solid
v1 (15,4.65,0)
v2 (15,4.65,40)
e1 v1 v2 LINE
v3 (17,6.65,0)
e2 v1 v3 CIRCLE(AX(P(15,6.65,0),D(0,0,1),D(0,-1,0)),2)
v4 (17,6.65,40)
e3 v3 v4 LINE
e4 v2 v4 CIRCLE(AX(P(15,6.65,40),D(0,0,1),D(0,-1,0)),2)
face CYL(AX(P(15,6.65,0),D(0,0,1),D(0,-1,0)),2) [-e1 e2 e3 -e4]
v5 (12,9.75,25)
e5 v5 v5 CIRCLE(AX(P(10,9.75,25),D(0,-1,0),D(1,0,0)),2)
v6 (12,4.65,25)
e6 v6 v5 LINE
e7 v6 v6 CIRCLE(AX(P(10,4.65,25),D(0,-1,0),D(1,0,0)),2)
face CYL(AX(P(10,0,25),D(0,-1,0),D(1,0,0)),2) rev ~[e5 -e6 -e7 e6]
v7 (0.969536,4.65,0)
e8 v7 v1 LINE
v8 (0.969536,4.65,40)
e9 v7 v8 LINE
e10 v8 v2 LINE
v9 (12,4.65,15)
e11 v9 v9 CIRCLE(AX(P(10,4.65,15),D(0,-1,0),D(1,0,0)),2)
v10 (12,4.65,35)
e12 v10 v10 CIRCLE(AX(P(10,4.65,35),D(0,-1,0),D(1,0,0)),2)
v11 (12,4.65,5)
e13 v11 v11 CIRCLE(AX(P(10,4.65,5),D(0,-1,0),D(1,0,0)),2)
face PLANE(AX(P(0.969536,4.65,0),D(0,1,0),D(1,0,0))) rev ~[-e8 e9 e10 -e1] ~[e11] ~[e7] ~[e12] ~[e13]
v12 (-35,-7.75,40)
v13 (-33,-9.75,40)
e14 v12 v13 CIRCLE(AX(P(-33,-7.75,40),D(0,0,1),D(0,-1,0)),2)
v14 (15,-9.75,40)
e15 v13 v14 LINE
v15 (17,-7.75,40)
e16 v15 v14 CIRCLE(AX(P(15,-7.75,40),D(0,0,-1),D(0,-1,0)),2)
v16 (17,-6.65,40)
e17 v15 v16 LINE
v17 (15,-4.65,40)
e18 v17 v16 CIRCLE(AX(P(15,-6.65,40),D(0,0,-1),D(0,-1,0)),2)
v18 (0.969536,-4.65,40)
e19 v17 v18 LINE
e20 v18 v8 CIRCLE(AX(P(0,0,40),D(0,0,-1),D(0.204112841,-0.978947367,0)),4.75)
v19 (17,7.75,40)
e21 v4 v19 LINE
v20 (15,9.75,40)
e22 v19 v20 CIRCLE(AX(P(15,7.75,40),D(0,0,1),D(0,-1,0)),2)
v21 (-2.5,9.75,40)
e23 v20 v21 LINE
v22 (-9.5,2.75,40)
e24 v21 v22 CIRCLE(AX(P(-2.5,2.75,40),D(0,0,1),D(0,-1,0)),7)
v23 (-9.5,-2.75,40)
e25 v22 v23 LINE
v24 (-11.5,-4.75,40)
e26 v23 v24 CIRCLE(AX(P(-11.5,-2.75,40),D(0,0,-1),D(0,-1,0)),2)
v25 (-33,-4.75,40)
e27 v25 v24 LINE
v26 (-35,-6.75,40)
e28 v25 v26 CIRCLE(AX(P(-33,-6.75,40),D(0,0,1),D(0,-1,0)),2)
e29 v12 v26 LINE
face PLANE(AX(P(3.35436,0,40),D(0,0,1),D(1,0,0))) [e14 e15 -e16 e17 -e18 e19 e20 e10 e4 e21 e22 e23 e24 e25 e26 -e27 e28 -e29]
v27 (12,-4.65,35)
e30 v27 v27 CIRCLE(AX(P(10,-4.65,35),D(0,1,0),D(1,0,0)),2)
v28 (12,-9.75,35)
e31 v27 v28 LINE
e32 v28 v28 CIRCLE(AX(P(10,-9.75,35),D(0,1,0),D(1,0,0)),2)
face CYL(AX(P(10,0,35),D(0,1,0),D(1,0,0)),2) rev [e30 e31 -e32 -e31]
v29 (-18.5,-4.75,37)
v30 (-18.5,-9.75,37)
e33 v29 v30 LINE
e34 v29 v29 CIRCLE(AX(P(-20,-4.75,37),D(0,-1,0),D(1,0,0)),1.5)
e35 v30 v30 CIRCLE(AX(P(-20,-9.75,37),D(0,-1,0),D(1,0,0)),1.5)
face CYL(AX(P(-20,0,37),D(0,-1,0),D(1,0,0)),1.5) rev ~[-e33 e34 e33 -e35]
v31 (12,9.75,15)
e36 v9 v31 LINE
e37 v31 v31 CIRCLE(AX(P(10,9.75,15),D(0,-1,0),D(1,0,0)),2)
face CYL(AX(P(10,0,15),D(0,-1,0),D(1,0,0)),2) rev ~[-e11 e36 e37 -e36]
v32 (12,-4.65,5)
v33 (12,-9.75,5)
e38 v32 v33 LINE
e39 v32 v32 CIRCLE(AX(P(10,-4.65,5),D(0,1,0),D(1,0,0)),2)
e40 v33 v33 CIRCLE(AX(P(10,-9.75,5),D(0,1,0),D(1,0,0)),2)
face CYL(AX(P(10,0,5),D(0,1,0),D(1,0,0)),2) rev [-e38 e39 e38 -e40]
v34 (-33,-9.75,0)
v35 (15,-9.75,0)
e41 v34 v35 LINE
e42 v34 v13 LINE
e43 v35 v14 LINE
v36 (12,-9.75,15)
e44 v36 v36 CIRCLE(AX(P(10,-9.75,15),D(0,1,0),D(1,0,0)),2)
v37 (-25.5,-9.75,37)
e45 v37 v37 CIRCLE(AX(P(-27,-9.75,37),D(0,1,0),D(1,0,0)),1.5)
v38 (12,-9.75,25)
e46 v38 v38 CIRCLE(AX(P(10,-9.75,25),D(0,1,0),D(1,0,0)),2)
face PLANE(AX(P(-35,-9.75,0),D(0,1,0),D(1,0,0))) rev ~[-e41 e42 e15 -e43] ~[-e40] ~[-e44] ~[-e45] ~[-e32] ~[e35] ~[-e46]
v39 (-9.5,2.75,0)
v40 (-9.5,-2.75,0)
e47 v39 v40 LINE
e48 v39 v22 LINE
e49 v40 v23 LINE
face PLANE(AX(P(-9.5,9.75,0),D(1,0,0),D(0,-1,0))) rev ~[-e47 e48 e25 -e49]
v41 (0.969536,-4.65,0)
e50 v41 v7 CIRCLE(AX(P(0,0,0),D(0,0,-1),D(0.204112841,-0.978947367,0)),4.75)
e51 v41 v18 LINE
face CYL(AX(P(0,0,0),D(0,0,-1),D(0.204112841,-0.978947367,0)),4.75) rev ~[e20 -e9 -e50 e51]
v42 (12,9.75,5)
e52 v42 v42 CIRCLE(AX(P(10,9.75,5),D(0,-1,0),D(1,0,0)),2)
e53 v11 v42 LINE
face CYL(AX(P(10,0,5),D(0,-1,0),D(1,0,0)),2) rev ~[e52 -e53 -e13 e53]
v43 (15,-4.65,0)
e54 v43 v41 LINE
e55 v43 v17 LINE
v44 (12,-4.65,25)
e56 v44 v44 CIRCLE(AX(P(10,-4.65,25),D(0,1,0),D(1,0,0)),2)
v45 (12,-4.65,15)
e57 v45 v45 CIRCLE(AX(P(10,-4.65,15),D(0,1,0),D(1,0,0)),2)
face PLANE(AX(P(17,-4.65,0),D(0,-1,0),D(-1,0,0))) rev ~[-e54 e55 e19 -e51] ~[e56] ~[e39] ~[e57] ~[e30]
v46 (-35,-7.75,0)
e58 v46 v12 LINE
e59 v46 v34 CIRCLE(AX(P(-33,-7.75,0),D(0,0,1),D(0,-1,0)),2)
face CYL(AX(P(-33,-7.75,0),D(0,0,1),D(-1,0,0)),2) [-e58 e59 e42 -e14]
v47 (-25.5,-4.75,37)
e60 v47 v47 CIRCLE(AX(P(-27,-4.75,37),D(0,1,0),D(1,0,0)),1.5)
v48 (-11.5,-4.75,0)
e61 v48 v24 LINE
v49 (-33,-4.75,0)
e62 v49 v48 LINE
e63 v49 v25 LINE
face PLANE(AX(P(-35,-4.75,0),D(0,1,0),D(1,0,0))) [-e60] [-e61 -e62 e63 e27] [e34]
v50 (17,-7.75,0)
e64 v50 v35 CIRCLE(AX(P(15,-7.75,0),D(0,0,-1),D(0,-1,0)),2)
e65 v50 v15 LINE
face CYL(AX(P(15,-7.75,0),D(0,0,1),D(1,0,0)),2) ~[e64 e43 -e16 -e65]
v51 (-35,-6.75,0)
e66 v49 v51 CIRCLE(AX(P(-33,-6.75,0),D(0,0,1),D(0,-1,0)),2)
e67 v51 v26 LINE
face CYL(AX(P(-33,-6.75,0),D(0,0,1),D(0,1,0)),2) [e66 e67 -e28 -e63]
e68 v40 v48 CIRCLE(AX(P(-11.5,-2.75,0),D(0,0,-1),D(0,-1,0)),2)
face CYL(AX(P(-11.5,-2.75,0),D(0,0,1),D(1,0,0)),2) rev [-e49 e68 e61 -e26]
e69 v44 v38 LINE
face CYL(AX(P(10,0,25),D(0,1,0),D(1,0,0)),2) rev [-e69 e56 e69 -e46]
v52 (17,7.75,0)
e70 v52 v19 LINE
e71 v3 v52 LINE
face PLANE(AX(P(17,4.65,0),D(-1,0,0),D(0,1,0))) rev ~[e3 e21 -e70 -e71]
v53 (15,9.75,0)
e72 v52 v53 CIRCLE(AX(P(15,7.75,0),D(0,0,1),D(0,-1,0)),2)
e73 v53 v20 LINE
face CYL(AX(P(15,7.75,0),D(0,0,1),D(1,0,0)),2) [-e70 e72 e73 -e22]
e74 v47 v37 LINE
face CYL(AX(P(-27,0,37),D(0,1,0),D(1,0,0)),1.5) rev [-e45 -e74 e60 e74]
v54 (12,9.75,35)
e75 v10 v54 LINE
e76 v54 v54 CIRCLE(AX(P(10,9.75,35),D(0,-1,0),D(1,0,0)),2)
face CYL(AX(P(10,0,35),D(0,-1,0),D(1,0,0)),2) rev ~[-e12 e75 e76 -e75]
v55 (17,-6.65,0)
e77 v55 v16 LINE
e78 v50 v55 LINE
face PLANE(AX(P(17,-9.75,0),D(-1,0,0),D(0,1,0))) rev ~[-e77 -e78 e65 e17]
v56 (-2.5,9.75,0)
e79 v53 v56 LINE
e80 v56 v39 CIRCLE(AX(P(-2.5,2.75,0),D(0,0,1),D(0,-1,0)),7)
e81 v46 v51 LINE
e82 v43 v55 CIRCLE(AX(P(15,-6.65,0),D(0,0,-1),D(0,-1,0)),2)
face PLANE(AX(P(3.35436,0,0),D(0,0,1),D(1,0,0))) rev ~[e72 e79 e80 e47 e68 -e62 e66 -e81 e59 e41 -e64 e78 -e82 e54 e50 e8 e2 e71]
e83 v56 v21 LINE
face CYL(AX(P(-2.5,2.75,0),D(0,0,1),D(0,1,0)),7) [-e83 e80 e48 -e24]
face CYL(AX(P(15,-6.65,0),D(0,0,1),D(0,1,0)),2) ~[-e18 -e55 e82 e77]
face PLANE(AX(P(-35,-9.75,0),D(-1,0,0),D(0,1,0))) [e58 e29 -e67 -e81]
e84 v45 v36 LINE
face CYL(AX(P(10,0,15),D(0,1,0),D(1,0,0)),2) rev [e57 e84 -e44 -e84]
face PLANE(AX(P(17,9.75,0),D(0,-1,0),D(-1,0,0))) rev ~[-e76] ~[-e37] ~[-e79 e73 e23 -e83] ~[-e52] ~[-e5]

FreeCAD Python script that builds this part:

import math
import FreeCAD as App
import Part
import Sketcher
from FreeCAD import Vector
Q = App.Units.Quantity


def edges_at(feature, points):
    """Names of the edges that pass closest to the given points."""
    edges = feature.Shape.Edges
    near = lambda p: min(range(len(edges)), key=lambda i: edges[i].distToShape(Part.Vertex(*p))[0])
    return sorted({f"Edge{near(p) + 1}" for p in points})

doc = App.newDocument("Part")
params = doc.addObject("Spreadsheet::Sheet", "Params")
for row, (alias, value) in enumerate([
    ("sketch1_width", "52 mm"),
    ("sketch1_height", "5 mm"),
    ("sketch1_radius", "4.75 mm"),
    ("sketch1_width2", "26.5 mm"),
    ("sketch1_height2", "5.1 mm"),
    ("pad1_length", "40 mm"),
    ("sketch2_diameter", "4 mm"),
    ("sketch2_diameter2", "3 mm"),
    ("pocket1_length", "40 mm"),
    ("fillet_radius", "2 mm"),
    ("fillet2_radius", "7 mm"),
], start=1):
    params.set(f"A{row}", alias)
    params.set(f"B{row}", "=" + value)
    params.setAlias(f"B{row}", alias)

body = doc.addObject("PartDesign::Body", "Body")

# Sketch on XY plane
sketch1 = body.newObject("Sketcher::SketchObject", "Sketch")
sketch1.AttachmentSupport = (doc.getObject("XY_Plane"), [""])
sketch1.MapMode = "FlatFace"
sketch1.addGeometry(Part.ArcOfCircle(Part.Circle(Vector(0, 0, 0), Vector(0, 0, 1), 4.75), math.radians(78.222429), math.radians(281.777571)), False)
sketch1.addGeometry(Part.LineSegment(Vector(0.969536, 4.65, 0), Vector(17, 4.65, 0)), False)
sketch1.addGeometry(Part.LineSegment(Vector(17, 4.65, 0), Vector(17, 9.75, 0)), False)
sketch1.addGeometry(Part.LineSegment(Vector(17, 9.75, 0), Vector(-9.5, 9.75, 0)), False)
sketch1.addGeometry(Part.LineSegment(Vector(-9.5, 9.75, 0), Vector(-9.5, -4.75, 0)), False)
sketch1.addGeometry(Part.LineSegment(Vector(-9.5, -4.75, 0), Vector(-35, -4.75, 0)), False)
sketch1.addGeometry(Part.LineSegment(Vector(-35, -4.75, 0), Vector(-35, -9.75, 0)), False)
sketch1.addGeometry(Part.LineSegment(Vector(-35, -9.75, 0), Vector(17, -9.75, 0)), False)
sketch1.addGeometry(Part.LineSegment(Vector(17, -9.75, 0), Vector(17, -4.65, 0)), False)
sketch1.addGeometry(Part.LineSegment(Vector(17, -4.65, 0), Vector(0.969536, -4.65, 0)), False)
sketch1.addConstraint(Sketcher.Constraint("Coincident", 0, 1, 1, 1))
sketch1.addConstraint(Sketcher.Constraint("Coincident", 1, 2, 2, 1))
sketch1.addConstraint(Sketcher.Constraint("Coincident", 2, 2, 3, 1))
sketch1.addConstraint(Sketcher.Constraint("Coincident", 3, 2, 4, 1))
sketch1.addConstraint(Sketcher.Constraint("Coincident", 4, 2, 5, 1))
sketch1.addConstraint(Sketcher.Constraint("Coincident", 5, 2, 6, 1))
sketch1.addConstraint(Sketcher.Constraint("Coincident", 6, 2, 7, 1))
sketch1.addConstraint(Sketcher.Constraint("Coincident", 7, 2, 8, 1))
sketch1.addConstraint(Sketcher.Constraint("Coincident", 8, 2, 9, 1))
sketch1.addConstraint(Sketcher.Constraint("Coincident", 9, 2, 0, 2))
sketch1.addConstraint(Sketcher.Constraint("Horizontal", 1))
sketch1.addConstraint(Sketcher.Constraint("Vertical", 2))
sketch1.addConstraint(Sketcher.Constraint("Horizontal", 3))
sketch1.addConstraint(Sketcher.Constraint("Vertical", 4))
sketch1.addConstraint(Sketcher.Constraint("Horizontal", 5))
sketch1.addConstraint(Sketcher.Constraint("Vertical", 6))
sketch1.addConstraint(Sketcher.Constraint("Horizontal", 7))
sketch1.addConstraint(Sketcher.Constraint("Vertical", 8))
sketch1.addConstraint(Sketcher.Constraint("Horizontal", 9))
sketch1.addConstraint(Sketcher.Constraint("Coincident", 0, 3, -1, 1))
sketch1.addConstraint(Sketcher.Constraint("Symmetric", 2, 2, 7, 2, -1))
sketch1.addConstraint(Sketcher.Constraint("Vertical", 0, 1, 9, 2))
sketch1.addConstraint(Sketcher.Constraint("DistanceX", 7, 1, 7, 2, Q("52 mm")))
sketch1.addConstraint(Sketcher.Constraint("DistanceY", 6, 2, 6, 1, Q("5 mm")))
sketch1.addConstraint(Sketcher.Constraint("Radius", 0, Q("4.75 mm")))
sketch1.addConstraint(Sketcher.Constraint("DistanceX", 3, 2, 3, 1, Q("26.5 mm")))
sketch1.addConstraint(Sketcher.Constraint("DistanceY", 2, 1, 2, 2, Q("5.1 mm")))
sketch1.addConstraint(Sketcher.Constraint("DistanceY", 4, 2, 4, 1, Q("14.5 mm")))
sketch1.addConstraint(Sketcher.Constraint("DistanceX", -1, 1, 1, 2, Q("17 mm")))
sketch1.setExpression("Constraints[22]", "Params.sketch1_width")
sketch1.setExpression("Constraints[23]", "Params.sketch1_height")
sketch1.setExpression("Constraints[24]", "Params.sketch1_radius")
sketch1.setExpression("Constraints[25]", "Params.sketch1_width2")
sketch1.setExpression("Constraints[26]", "Params.sketch1_height2")
pad1 = body.newObject("PartDesign::Pad", "Pad")
pad1.Profile = sketch1
pad1.setExpression("Length", "Params.pad1_length")

# Sketch on XZ plane
sketch2 = body.newObject("Sketcher::SketchObject", "Sketch001")
sketch2.AttachmentSupport = (doc.getObject("XZ_Plane"), [""])
sketch2.MapMode = "FlatFace"
sketch2.addGeometry(Part.Circle(Vector(10, 35, 0), Vector(0, 0, 1), 2), False)
sketch2.addGeometry(Part.Circle(Vector(10, 25, 0), Vector(0, 0, 1), 2), False)
sketch2.addGeometry(Part.Circle(Vector(10, 15, 0), Vector(0, 0, 1), 2), False)
sketch2.addGeometry(Part.Circle(Vector(10, 5, 0), Vector(0, 0, 1), 2), False)
sketch2.addGeometry(Part.Circle(Vector(-27, 37, 0), Vector(0, 0, 1), 1.5), False)
sketch2.addGeometry(Part.Circle(Vector(-20, 37, 0), Vector(0, 0, 1), 1.5), False)
sketch2.addConstraint(Sketcher.Constraint("Equal", 0, 1))
sketch2.addConstraint(Sketcher.Constraint("Equal", 1, 2))
sketch2.addConstraint(Sketcher.Constraint("Equal", 2, 3))
sketch2.addConstraint(Sketcher.Constraint("Equal", 4, 5))
sketch2.addConstraint(Sketcher.Constraint("Horizontal", 4, 3, 5, 3))
sketch2.addConstraint(Sketcher.Constraint("Vertical", 0, 3, 1, 3))
sketch2.addConstraint(Sketcher.Constraint("Vertical", 1, 3, 2, 3))
sketch2.addConstraint(Sketcher.Constraint("Vertical", 2, 3, 3, 3))
sketch2.addConstraint(Sketcher.Constraint("Diameter", 0, Q("4 mm")))
sketch2.addConstraint(Sketcher.Constraint("Diameter", 4, Q("3 mm")))
sketch2.addConstraint(Sketcher.Constraint("DistanceX", -1, 1, 0, 3, Q("10 mm")))
sketch2.addConstraint(Sketcher.Constraint("DistanceY", -1, 1, 0, 3, Q("35 mm")))
sketch2.addConstraint(Sketcher.Constraint("DistanceY", -1, 1, 1, 3, Q("25 mm")))
sketch2.addConstraint(Sketcher.Constraint("DistanceY", -1, 1, 2, 3, Q("15 mm")))
sketch2.addConstraint(Sketcher.Constraint("DistanceY", -1, 1, 3, 3, Q("5 mm")))
sketch2.addConstraint(Sketcher.Constraint("DistanceX", 4, 3, -1, 1, Q("27 mm")))
sketch2.addConstraint(Sketcher.Constraint("DistanceY", -1, 1, 4, 3, Q("37 mm")))
sketch2.addConstraint(Sketcher.Constraint("DistanceX", 5, 3, -1, 1, Q("20 mm")))
sketch2.setExpression("Constraints[8]", "Params.sketch2_diameter")
sketch2.setExpression("Constraints[9]", "Params.sketch2_diameter2")
pocket1 = body.newObject("PartDesign::Pocket", "Pocket")
pocket1.Profile = sketch2
pocket1.setExpression("Length", "Params.pocket1_length")
pocket1.Midplane = True
doc.recompute()

fillet = body.newObject("PartDesign::Fillet", "Fillet")
fillet.Base = (pocket1, edges_at(pocket1, [
    (-35, -9.75, 20),
    (-35, -4.75, 20),
    (17, -9.75, 20),
    (-9.5, -4.75, 20),
    (17, -4.65, 20),
    (17, 4.65, 20),
    (17, 9.75, 20),
]))
fillet.setExpression("Radius", "Params.fillet_radius")
doc.recompute()

fillet2 = body.newObject("PartDesign::Fillet", "Fillet001")
fillet2.Base = (fillet, edges_at(fillet, [(-9.5, 9.75, 20)]))
fillet2.setExpression("Radius", "Params.fillet2_radius")

doc.recompute()
